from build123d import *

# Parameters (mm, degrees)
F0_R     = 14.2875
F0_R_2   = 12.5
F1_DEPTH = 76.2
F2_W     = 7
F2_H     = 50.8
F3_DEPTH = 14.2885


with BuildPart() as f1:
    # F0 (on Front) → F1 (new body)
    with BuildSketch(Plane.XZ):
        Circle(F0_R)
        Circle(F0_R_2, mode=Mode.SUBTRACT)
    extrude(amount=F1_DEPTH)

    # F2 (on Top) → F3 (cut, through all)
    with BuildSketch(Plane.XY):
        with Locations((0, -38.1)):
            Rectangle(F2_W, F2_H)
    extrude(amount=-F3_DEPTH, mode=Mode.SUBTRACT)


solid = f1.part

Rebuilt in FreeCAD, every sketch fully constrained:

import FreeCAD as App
import Part
import Sketcher
from FreeCAD import Vector
Q = App.Units.Quantity


def add_polygon(sketch, points):
    """Adds a closed chain of lines whose ends are joined by coincident constraints."""
    first, n = sketch.GeometryCount, len(points)
    for a, b in zip(points, points[1:] + points[:1]):
        sketch.addGeometry(Part.LineSegment(App.Vector(*a, 0), App.Vector(*b, 0)), False)
    for i in range(n):
        sketch.addConstraint(Sketcher.Constraint("Coincident", first + i, 2, first + (i + 1) % n, 1))

doc = App.newDocument("Part")
params = doc.addObject("Spreadsheet::Sheet", "Params")
for row, (alias, value) in enumerate([
    ("sketch1_diameter", "1.125 in"),
    ("pad1_length", "3 in"),
    ("sketch2_height", "2 in"),
], start=1):
    params.set(f"A{row}", alias)
    params.set(f"B{row}", "=" + value)
    params.setAlias(f"B{row}", alias)

body = doc.addObject("PartDesign::Body", "Body")

# Sketch on XZ plane
sketch1 = doc.addObject("Sketcher::SketchObject", "Sketch")
body.addObject(sketch1)
sketch1.AttachmentSupport = (doc.XZ_Plane, [""])
sketch1.MapMode = "FlatFace"
sketch1.addGeometry(Part.Circle(Vector(0, 0, 0), Vector(0, 0, 1), 14), False)
sketch1.addGeometry(Part.Circle(Vector(0, 0, 0), Vector(0, 0, 1), 12), False)
sketch1.addConstraint(Sketcher.Constraint("Coincident", 0, 3, -1, 1))
sketch1.addConstraint(Sketcher.Constraint("Coincident", 1, 3, -1, 1))
sketch1.addConstraint(Sketcher.Constraint("Diameter", 0, Q("1.125 in")))
sketch1.addConstraint(Sketcher.Constraint("Diameter", 1, 25.0))
sketch1.setExpression("Constraints[2]", "Params.sketch1_diameter")
pad1 = doc.addObject("PartDesign::Pad", "Pad")
body.addObject(pad1)
pad1.Profile = sketch1
pad1.setExpression("Length", "Params.pad1_length")

# Sketch on XY plane
sketch2 = doc.addObject("Sketcher::SketchObject", "Sketch001")
body.addObject(sketch2)
sketch2.AttachmentSupport = (doc.XY_Plane, [""])
sketch2.MapMode = "FlatFace"
add_polygon(sketch2, [(-4, -13), (-4, -64), (4, -64), (4, -13)])  # lines 0-3
sketch2.addConstraint(Sketcher.Constraint("Vertical", 0))
sketch2.addConstraint(Sketcher.Constraint("Horizontal", 1))
sketch2.addConstraint(Sketcher.Constraint("Vertical", 2))
sketch2.addConstraint(Sketcher.Constraint("Horizontal", 3))
sketch2.addConstraint(Sketcher.Constraint("DistanceY", 0, 2, 0, 1, Q("2 in")))
sketch2.addConstraint(Sketcher.Constraint("DistanceY", 0, 2, -1, 1, Q("2.5 in")))
sketch2.addConstraint(Sketcher.Constraint("DistanceX", 1, 1, 1, 2, 7.0))
sketch2.addConstraint(Sketcher.Constraint("DistanceX", 0, 2, -1, 1, 3.5))
sketch2.setExpression("Constraints[8]", "Params.sketch2_height")
pocket1 = doc.addObject("PartDesign::Pocket", "Pocket")
body.addObject(pocket1)
pocket1.Profile = sketch2
pocket1.Type = "ThroughAll"

doc.recompute()
